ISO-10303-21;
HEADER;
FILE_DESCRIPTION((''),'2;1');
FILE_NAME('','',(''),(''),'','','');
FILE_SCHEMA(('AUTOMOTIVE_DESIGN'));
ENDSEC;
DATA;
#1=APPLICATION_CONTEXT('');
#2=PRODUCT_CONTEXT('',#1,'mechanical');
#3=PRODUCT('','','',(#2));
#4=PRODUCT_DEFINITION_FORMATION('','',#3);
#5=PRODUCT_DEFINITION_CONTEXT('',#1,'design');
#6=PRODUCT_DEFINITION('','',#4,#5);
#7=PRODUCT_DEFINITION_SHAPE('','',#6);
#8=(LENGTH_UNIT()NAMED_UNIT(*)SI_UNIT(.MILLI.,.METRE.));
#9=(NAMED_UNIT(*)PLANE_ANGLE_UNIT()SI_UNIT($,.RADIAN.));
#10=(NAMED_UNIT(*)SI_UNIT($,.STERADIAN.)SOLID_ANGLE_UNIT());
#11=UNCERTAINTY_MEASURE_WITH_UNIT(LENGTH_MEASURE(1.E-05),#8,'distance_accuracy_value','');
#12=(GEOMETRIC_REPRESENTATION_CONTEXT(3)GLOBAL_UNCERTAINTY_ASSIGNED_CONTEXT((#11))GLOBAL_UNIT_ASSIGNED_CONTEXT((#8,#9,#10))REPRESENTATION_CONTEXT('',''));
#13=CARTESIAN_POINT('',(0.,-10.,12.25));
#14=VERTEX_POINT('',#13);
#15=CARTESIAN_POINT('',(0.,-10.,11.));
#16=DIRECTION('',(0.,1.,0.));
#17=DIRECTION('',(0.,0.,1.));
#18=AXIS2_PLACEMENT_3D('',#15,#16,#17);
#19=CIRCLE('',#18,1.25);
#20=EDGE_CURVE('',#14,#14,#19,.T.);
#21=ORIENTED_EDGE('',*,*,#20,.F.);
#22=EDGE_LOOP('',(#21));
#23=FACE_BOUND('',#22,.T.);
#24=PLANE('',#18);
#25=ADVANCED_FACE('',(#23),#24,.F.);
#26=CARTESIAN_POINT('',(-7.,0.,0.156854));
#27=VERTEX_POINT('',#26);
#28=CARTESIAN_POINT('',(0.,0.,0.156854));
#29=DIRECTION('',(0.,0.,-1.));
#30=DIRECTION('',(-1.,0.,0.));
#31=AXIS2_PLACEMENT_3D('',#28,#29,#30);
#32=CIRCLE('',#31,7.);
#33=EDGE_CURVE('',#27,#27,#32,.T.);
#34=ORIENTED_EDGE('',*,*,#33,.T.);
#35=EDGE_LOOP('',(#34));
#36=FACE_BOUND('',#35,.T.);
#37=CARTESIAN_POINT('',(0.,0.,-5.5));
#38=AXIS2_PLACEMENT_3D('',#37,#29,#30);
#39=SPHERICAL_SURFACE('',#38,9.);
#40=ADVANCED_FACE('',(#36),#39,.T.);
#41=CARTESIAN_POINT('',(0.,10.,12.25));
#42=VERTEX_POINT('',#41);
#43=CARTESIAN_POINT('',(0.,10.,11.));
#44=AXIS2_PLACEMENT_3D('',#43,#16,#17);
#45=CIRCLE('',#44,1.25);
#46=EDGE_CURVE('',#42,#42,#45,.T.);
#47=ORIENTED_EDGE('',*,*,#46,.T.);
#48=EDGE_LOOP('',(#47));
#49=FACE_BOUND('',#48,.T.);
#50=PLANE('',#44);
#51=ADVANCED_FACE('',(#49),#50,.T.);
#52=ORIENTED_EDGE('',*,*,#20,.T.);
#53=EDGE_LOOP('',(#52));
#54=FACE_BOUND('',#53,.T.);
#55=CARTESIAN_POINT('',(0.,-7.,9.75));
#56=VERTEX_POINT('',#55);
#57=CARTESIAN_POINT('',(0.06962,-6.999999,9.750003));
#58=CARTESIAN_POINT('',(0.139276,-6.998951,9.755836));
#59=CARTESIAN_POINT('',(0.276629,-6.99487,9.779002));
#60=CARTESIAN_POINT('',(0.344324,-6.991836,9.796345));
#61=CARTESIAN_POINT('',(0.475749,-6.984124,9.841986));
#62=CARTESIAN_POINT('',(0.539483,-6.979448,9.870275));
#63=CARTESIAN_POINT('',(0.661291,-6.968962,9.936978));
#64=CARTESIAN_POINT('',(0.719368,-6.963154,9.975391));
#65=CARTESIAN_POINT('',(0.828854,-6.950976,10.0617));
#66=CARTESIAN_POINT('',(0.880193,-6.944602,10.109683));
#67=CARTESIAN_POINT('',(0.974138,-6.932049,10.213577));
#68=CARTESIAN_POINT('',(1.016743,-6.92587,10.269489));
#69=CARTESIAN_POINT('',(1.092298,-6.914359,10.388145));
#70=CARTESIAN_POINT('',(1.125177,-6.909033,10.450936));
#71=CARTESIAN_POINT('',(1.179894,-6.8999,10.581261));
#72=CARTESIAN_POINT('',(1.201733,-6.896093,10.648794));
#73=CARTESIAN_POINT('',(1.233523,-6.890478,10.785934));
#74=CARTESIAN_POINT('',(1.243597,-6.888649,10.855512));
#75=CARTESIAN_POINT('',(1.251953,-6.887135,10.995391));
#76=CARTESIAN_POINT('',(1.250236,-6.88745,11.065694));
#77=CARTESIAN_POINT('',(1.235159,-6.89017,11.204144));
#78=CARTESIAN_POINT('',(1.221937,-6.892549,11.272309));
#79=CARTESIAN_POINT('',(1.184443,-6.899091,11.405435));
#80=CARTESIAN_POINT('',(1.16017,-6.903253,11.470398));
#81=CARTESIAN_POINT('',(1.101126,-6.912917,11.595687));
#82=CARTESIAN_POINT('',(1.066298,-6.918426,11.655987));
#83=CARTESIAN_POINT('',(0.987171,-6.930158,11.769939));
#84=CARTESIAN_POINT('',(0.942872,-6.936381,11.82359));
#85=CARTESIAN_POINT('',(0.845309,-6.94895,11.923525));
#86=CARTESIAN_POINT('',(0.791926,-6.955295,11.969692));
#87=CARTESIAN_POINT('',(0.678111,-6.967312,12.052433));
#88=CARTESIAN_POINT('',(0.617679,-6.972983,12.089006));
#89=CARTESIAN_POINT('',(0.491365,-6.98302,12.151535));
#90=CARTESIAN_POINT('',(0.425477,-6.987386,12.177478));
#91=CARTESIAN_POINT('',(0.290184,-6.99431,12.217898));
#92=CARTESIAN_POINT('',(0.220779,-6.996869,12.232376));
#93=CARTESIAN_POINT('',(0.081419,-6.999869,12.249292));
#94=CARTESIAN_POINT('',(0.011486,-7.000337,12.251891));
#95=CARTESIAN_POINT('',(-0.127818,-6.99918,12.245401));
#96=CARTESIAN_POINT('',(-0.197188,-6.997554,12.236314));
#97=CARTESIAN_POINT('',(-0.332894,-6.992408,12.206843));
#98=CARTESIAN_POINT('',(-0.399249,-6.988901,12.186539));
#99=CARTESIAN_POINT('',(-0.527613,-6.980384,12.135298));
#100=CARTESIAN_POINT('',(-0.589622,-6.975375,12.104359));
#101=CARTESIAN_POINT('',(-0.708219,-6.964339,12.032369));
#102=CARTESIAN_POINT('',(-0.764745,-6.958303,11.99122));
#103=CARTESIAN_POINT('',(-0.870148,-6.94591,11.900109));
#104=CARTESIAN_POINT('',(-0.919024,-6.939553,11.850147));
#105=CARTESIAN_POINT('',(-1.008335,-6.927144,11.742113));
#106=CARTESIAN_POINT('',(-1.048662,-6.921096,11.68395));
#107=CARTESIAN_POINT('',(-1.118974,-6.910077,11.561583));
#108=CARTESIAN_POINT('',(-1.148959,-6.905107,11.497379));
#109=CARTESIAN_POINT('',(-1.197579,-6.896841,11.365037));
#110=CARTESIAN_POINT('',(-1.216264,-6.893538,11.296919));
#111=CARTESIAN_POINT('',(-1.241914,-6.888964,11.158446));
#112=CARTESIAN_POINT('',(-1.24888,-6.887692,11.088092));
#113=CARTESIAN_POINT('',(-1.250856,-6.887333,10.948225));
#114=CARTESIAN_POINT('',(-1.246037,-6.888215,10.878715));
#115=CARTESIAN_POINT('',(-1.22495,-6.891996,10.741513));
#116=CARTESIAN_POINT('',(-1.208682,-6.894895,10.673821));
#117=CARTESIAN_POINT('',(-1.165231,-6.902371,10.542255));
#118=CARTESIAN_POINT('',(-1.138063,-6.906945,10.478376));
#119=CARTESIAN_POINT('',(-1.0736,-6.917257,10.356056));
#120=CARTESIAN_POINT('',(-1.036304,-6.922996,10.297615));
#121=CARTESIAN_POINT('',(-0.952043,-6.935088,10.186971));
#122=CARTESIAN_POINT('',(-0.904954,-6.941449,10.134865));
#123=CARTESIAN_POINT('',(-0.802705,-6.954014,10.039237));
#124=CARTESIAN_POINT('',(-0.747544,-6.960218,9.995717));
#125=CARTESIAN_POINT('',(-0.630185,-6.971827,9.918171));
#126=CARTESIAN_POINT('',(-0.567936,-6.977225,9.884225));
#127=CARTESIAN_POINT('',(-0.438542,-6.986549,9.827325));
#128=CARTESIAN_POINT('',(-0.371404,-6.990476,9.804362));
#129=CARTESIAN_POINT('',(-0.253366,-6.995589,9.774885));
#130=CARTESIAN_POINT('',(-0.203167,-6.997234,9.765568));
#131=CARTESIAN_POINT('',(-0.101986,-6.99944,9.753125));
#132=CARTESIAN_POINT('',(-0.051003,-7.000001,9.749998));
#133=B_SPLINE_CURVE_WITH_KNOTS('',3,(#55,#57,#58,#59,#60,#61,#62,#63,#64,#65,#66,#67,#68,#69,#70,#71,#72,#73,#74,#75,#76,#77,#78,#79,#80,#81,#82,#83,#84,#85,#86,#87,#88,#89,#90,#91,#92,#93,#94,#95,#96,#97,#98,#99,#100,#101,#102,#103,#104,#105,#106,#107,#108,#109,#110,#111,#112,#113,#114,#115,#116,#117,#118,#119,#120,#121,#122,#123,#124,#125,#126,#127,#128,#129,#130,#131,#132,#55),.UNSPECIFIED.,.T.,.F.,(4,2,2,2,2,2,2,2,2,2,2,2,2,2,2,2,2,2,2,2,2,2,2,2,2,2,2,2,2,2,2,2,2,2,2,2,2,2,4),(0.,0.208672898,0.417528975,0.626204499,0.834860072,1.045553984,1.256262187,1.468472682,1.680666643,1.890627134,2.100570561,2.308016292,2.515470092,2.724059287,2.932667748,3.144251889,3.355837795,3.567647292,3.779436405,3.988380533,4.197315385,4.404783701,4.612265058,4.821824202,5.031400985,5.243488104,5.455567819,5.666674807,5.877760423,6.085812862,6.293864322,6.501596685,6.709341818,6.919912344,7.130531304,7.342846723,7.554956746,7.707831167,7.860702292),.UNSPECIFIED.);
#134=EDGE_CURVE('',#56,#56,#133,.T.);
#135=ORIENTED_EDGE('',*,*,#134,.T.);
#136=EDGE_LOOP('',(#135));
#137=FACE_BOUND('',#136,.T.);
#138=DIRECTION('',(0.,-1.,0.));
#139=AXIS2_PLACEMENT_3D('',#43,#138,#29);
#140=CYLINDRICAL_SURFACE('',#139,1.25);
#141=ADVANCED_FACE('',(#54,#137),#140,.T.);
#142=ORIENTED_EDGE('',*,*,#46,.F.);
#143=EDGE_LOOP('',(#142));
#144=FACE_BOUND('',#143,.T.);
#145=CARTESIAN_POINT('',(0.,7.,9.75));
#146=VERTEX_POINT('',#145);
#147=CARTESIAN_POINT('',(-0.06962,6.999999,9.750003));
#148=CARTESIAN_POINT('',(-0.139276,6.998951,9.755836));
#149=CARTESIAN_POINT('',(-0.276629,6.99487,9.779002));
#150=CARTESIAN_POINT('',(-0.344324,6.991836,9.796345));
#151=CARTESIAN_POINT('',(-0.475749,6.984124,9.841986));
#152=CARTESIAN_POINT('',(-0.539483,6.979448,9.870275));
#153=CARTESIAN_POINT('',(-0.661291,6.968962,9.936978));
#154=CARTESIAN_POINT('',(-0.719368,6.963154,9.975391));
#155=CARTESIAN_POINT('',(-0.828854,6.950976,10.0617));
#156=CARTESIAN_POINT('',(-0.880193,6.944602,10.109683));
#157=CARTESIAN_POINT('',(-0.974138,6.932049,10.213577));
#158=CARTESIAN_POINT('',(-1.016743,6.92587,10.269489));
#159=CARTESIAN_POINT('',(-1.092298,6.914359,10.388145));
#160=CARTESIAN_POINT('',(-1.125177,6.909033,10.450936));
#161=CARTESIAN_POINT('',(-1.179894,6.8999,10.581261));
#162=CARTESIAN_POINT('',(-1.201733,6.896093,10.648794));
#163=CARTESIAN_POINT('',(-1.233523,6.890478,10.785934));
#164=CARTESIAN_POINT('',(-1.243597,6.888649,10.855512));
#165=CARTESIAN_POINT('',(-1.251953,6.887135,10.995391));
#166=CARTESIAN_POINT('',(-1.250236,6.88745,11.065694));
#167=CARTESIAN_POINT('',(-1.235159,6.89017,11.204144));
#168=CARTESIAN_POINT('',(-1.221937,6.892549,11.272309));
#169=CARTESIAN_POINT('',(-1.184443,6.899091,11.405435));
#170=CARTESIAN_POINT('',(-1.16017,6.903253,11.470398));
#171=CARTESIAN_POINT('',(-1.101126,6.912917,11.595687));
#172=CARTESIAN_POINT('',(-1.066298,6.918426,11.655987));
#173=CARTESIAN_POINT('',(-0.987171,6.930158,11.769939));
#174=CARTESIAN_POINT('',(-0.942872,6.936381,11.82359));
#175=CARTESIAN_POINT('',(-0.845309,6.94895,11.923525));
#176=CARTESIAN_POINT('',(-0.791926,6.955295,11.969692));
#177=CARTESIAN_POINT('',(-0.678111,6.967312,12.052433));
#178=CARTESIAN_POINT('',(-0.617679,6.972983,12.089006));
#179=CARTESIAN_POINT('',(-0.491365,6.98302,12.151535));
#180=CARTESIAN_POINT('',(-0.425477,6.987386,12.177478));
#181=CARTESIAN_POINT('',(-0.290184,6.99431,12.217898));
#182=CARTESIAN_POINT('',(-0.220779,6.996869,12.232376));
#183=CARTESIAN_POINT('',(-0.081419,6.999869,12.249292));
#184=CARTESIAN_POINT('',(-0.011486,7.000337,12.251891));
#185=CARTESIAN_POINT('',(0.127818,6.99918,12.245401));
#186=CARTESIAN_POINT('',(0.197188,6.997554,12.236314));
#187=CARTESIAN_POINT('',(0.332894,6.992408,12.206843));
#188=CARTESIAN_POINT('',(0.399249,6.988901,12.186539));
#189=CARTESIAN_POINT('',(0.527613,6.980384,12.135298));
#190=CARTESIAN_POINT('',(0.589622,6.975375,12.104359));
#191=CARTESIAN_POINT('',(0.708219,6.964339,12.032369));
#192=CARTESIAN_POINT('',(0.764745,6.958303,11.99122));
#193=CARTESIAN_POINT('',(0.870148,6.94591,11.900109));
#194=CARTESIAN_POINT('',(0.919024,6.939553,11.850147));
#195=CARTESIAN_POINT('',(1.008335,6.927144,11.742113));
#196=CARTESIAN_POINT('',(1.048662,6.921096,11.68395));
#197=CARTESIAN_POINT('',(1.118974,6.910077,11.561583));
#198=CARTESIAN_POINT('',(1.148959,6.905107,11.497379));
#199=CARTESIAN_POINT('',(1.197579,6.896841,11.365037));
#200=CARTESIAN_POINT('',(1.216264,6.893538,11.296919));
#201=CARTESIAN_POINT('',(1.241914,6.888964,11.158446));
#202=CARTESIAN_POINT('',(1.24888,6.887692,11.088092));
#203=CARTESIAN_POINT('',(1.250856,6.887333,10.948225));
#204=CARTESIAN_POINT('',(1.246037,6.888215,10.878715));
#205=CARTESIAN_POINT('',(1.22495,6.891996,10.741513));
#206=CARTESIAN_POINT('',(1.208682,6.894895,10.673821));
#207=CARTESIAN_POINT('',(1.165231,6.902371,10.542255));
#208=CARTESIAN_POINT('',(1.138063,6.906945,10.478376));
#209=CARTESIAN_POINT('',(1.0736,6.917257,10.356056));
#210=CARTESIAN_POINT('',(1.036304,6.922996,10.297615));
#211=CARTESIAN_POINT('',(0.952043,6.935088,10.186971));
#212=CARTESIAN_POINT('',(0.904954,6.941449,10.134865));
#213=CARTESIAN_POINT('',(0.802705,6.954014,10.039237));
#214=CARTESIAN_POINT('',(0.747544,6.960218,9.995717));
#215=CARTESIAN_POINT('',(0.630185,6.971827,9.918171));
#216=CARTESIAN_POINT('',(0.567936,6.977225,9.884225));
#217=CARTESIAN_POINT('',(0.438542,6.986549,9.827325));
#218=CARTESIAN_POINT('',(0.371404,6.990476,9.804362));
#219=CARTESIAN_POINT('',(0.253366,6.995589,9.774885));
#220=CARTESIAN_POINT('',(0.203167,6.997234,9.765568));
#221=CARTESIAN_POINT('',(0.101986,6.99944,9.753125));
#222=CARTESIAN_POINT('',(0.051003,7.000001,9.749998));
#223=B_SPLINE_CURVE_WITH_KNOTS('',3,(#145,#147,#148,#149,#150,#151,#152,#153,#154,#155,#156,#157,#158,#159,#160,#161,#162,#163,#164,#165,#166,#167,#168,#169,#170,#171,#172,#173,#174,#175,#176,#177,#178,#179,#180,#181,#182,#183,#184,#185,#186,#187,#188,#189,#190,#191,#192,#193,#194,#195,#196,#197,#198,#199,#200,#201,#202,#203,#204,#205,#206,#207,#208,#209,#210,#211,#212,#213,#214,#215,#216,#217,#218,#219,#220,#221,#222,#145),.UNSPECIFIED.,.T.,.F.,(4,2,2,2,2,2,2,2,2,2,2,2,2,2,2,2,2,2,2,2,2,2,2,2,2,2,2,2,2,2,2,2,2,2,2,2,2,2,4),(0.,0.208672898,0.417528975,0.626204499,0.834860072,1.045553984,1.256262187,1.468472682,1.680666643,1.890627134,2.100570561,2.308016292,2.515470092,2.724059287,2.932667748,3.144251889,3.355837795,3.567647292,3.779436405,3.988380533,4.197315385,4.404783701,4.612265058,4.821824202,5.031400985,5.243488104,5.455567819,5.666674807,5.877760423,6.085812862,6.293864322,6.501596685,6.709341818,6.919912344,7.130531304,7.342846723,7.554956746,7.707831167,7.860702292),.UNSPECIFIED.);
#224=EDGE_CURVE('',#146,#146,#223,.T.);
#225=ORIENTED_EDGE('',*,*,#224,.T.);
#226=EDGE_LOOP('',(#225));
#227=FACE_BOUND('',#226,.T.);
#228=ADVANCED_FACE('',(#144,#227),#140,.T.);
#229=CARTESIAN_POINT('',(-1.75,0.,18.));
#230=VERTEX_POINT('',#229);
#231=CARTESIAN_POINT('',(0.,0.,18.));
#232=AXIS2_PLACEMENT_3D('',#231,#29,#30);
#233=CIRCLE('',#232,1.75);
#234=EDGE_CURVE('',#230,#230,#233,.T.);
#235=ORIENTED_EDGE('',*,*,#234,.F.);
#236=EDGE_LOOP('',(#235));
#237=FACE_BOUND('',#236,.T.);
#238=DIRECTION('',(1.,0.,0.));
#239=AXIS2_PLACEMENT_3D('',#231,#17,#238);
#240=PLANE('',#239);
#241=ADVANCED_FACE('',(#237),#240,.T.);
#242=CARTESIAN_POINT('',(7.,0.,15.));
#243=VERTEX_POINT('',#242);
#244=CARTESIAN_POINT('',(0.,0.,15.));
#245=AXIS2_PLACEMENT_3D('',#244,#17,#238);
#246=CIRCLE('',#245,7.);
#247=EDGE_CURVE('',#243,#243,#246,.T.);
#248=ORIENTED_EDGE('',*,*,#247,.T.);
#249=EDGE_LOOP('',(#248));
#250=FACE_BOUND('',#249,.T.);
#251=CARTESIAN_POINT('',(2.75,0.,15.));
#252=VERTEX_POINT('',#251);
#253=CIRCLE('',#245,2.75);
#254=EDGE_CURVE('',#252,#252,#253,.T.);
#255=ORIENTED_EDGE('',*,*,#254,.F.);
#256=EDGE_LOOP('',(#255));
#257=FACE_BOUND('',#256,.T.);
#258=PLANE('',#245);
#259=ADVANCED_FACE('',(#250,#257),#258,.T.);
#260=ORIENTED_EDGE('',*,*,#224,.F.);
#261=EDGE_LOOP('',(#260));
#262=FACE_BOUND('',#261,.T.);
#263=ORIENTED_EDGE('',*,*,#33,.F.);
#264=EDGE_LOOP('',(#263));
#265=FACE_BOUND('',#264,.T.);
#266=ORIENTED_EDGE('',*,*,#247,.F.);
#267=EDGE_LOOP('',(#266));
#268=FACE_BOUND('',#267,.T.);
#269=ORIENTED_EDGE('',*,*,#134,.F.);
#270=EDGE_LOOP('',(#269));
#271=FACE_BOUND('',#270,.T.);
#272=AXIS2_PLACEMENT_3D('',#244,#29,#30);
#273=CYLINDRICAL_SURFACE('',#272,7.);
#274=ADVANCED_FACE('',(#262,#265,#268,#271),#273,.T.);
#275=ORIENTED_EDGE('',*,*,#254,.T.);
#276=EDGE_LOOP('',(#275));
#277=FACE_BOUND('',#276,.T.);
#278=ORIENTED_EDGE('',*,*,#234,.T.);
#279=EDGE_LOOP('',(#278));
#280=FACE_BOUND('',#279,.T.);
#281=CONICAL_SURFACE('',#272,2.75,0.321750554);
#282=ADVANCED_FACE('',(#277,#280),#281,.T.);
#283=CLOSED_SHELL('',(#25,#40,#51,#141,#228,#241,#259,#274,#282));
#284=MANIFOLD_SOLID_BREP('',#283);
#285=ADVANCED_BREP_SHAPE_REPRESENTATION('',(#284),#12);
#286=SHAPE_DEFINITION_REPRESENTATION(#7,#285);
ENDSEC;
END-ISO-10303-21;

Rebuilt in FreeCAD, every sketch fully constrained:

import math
import FreeCAD as App
import Part
import Sketcher
from FreeCAD import Vector

doc = App.newDocument("Part")
body = doc.addObject("PartDesign::Body", "Body")

sketch1 = body.newObject("Sketcher::SketchObject", "Sketch")
sketch1.AttachmentSupport = (doc.getObject("XY_Plane"), [""])
sketch1.MapMode = "FlatFace"
sketch1.addGeometry(Part.Circle(Vector(0, 0, 0), Vector(0, 0, 1), 7), False)
sketch1.addConstraint([
    Sketcher.Constraint("Coincident", 0, 3, -1, 1),
    Sketcher.Constraint("Diameter", 0, 14.0),
])
pad1 = body.newObject("PartDesign::Pad", "Pad")
pad1.Profile = sketch1
pad1.Length = 15

sketch2 = body.newObject("Sketcher::SketchObject", "Sketch001")
sketch2.AttachmentSupport = (doc.getObject("YZ_Plane"), [""])
sketch2.MapMode = "FlatFace"
sketch2.addGeometry([
    Part.LineSegment(Vector(9, -6, 0), Vector(-9, -6, 0)),
    Part.ArcOfCircle(Part.Circle(Vector(0, -6, 0), Vector(0, 0, 1), 9), math.radians(180), math.radians(360)),
], False)
sketch2.addGeometry(Part.LineSegment(Vector(9, -6, 0), Vector(-9, -6, 0)), True)
sketch2.addConstraint([
    Sketcher.Constraint("Coincident", 0, 1, 1, 2),
    Sketcher.Constraint("Coincident", 1, 1, 0, 2),
    Sketcher.Constraint("Horizontal", 0),
    Sketcher.Constraint("Horizontal", 2),
    Sketcher.Constraint("Coincident", 2, 1, 0, 1),
    Sketcher.Constraint("PointOnObject", 1, 3, -2),
    Sketcher.Constraint("Horizontal", 1, 3, 0, 1),
    Sketcher.Constraint("Equal", 0, 2),
    Sketcher.Constraint("Radius", 1, 9.0),
    Sketcher.Constraint("DistanceY", 1, 3, -1, 1, 5.5),
])
revolution = body.newObject("PartDesign::Revolution", "Revolution")
revolution.Profile = sketch2
revolution.ReferenceAxis = (sketch2, ["Axis0"])
revolution.Angle = 360

sketch3 = body.newObject("Sketcher::SketchObject", "Sketch002")
sketch3.AttachmentSupport = (doc.getObject("XZ_Plane"), [""])
sketch3.MapMode = "FlatFace"
sketch3.addGeometry(Part.Circle(Vector(0, 11, 0), Vector(0, 0, 1), 1.2), False)
sketch3.addConstraint([
    Sketcher.Constraint("PointOnObject", 0, 3, -2),
    Sketcher.Constraint("Diameter", 0, 2.5),
    Sketcher.Constraint("DistanceY", -1, 1, 0, 3, 11.0),
])
pad2 = body.newObject("PartDesign::Pad", "Pad001")
pad2.Profile = sketch3
pad2.Length = 20
pad2.Midplane = True

sketch4 = body.newObject("Sketcher::SketchObject", "Sketch003")
sketch4.AttachmentSupport = (doc.getObject("YZ_Plane"), [""])
sketch4.MapMode = "FlatFace"
sketch4.addGeometry([
    Part.LineSegment(Vector(1.8, 18, 0), Vector(0, 18, 0)),
    Part.LineSegment(Vector(0, 18, 0), Vector(0, 15, 0)),
    Part.LineSegment(Vector(0, 15, 0), Vector(2.8, 15, 0)),
    Part.LineSegment(Vector(2.8, 15, 0), Vector(1.8, 18, 0)),
], False)
sketch4.addConstraint([
    Sketcher.Constraint("Coincident", 0, 2, 1, 1),
    Sketcher.Constraint("Coincident", 1, 2, 2, 1),
    Sketcher.Constraint("Coincident", 2, 2, 3, 1),
    Sketcher.Constraint("Coincident", 3, 2, 0, 1),
    Sketcher.Constraint("Horizontal", 0),
    Sketcher.Constraint("Vertical", 1),
    Sketcher.Constraint("Horizontal", 2),
    Sketcher.Constraint("PointOnObject", 0, 2, -2),
    Sketcher.Constraint("DistanceY", 1, 2, 1, 1, 3.0),
    Sketcher.Constraint("DistanceY", -1, 1, 0, 2, 18.0),
    Sketcher.Constraint("DistanceX", 3, 2, 2, 2, 1.0),
    Sketcher.Constraint("DistanceX", 0, 2, 0, 1, 1.75),
])
revolution2 = body.newObject("PartDesign::Revolution", "Revolution001")
revolution2.Profile = sketch4
revolution2.ReferenceAxis = (sketch4, ["V_Axis"])
revolution2.Angle = 360

doc.recompute()
